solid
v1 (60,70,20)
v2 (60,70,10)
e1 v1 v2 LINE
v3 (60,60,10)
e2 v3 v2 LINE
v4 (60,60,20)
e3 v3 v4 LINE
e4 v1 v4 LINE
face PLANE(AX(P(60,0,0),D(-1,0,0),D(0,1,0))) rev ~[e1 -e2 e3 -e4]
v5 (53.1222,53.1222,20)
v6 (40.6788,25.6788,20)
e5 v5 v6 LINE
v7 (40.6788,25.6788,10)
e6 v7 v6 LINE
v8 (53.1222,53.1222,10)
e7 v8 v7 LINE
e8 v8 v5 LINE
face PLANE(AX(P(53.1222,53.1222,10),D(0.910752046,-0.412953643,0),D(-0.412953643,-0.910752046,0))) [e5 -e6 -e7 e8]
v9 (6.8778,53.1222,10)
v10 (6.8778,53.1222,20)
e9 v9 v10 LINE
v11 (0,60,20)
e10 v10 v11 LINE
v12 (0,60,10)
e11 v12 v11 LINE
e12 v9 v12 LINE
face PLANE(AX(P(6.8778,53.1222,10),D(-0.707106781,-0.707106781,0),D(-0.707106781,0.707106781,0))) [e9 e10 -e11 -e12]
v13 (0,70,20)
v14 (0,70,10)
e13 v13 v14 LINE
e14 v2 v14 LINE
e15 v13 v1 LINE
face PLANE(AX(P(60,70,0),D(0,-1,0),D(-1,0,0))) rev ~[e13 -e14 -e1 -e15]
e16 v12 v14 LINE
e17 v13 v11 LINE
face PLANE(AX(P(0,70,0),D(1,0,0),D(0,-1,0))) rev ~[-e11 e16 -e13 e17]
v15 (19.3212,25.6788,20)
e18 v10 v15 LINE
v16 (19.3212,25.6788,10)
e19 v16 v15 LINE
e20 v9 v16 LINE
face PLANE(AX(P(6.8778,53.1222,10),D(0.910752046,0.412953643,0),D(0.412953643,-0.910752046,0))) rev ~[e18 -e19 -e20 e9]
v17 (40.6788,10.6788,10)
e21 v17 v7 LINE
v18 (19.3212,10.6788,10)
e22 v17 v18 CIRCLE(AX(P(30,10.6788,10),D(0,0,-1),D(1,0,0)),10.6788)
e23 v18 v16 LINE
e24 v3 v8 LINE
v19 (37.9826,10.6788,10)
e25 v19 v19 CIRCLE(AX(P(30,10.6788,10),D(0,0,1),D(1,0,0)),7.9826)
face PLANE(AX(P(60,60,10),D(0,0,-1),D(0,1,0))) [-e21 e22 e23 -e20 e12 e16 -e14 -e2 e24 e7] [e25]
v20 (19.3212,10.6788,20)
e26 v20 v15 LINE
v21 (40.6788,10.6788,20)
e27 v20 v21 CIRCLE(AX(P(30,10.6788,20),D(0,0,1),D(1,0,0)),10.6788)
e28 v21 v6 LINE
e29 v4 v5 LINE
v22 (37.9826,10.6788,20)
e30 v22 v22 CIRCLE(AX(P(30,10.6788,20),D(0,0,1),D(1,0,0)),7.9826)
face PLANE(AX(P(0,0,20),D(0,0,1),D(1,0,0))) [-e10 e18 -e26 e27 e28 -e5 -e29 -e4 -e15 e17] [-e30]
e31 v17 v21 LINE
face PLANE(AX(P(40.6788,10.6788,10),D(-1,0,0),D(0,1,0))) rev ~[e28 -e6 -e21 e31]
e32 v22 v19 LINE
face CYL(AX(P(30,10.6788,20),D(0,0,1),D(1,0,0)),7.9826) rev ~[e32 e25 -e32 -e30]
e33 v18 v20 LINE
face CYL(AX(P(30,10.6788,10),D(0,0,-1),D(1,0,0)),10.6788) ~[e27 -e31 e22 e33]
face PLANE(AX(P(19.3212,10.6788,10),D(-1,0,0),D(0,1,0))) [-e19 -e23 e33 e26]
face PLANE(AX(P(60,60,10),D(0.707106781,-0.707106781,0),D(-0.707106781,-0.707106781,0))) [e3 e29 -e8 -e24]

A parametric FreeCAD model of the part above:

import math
import FreeCAD as App
import Part
import Sketcher
Q = App.Units.Quantity


def add_polygon(sketch, points):
    """Adds a closed chain of lines whose ends are joined by coincident constraints."""
    first, n = sketch.GeometryCount, len(points)
    for a, b in zip(points, points[1:] + points[:1]):
        sketch.addGeometry(Part.LineSegment(App.Vector(*a, 0), App.Vector(*b, 0)), False)
    for i in range(n):
        sketch.addConstraint(Sketcher.Constraint("Coincident", first + i, 2, first + (i + 1) % n, 1))

doc = App.newDocument("Part")
body = doc.addObject("PartDesign::Body", "Body")

# Sketch on XY plane
sketch1 = body.newObject("Sketcher::SketchObject", "Sketch")
sketch1.AttachmentSupport = (doc.getObject("XY_Plane"), [""])
sketch1.MapMode = "FlatFace"
add_polygon(sketch1, [(0, 70), (0, 0), (60, 0), (60, 70)])  # lines 0-3
sketch1.addConstraint([
    Sketcher.Constraint("Vertical", 0),
    Sketcher.Constraint("Horizontal", 1),
    Sketcher.Constraint("Vertical", 2),
    Sketcher.Constraint("Horizontal", 3),
    Sketcher.Constraint("Coincident", 0, 2, -1, 1),
    Sketcher.Constraint("DistanceX", 1, 1, 1, 2, 60.0),
    Sketcher.Constraint("DistanceY", 0, 2, 0, 1, 70.0),
])
pad1 = body.newObject("PartDesign::Pad", "Pad")
pad1.Profile = sketch1
pad1.Length = 10

# Sketch on XY plane
sketch2 = body.newObject("Sketcher::SketchObject", "Sketch001")
sketch2.AttachmentSupport = (doc.getObject("XY_Plane"), [""])
sketch2.MapMode = "FlatFace"
sketch2.AttachmentOffset = App.Placement(App.Vector(0, 0, 10), App.Rotation())
sketch2.addGeometry([
    Part.LineSegment(App.Vector(0, 70, 0), App.Vector(0, 60, 0)),  # 0
    Part.LineSegment(App.Vector(0, 60, 0), App.Vector(7, 53, 0)),  # 1
    Part.LineSegment(App.Vector(7, 53, 0), App.Vector(19, 26, 0)),  # 2
    Part.LineSegment(App.Vector(19, 26, 0), App.Vector(19, 11, 0)),  # 3
    Part.ArcOfCircle(Part.Circle(App.Vector(30, 11, 0), App.Vector(0, 0, 1), 11), math.radians(180), math.radians(360)),  # 4
    Part.LineSegment(App.Vector(41, 11, 0), App.Vector(41, 26, 0)),  # 5
    Part.LineSegment(App.Vector(41, 26, 0), App.Vector(53, 53, 0)),  # 6
    Part.LineSegment(App.Vector(53, 53, 0), App.Vector(60, 60, 0)),  # 7
    Part.LineSegment(App.Vector(60, 60, 0), App.Vector(60, 70, 0)),  # 8
    Part.LineSegment(App.Vector(60, 70, 0), App.Vector(0, 70, 0)),  # 9
], False)
sketch2.addConstraint([
    Sketcher.Constraint("Coincident", 0, 2, 1, 1),
    Sketcher.Constraint("Coincident", 1, 2, 2, 1),
    Sketcher.Constraint("Coincident", 2, 2, 3, 1),
    Sketcher.Constraint("Tangent", 3, 2, 4, 1),
    Sketcher.Constraint("Tangent", 4, 2, 5, 1),
    Sketcher.Constraint("Coincident", 5, 2, 6, 1),
    Sketcher.Constraint("Coincident", 6, 2, 7, 1),
    Sketcher.Constraint("Coincident", 7, 2, 8, 1),
    Sketcher.Constraint("Coincident", 8, 2, 9, 1),
    Sketcher.Constraint("Coincident", 9, 2, 0, 1),
    Sketcher.Constraint("Vertical", 0),
    Sketcher.Constraint("Vertical", 3),
    Sketcher.Constraint("Vertical", 5),
    Sketcher.Constraint("Vertical", 8),
    Sketcher.Constraint("Horizontal", 9),
    Sketcher.Constraint("PointOnObject", 0, 2, -2),
    Sketcher.Constraint("Perpendicular", 1, 7),
    Sketcher.Constraint("Horizontal", 2, 2, 5, 2),
    Sketcher.Constraint("Horizontal", 1, 2, 6, 2),
    Sketcher.Constraint("Horizontal", 0, 2, 7, 2),
    Sketcher.Constraint("Equal", 2, 6),
    Sketcher.Constraint("Equal", 1, 7),
    Sketcher.Constraint("DistanceY", 0, 2, 0, 1, 10.0),
    Sketcher.Constraint("DistanceX", 9, 2, 9, 1, 60.0),
    Sketcher.Constraint("DistanceY", 3, 2, 3, 1, 15.0),
    Sketcher.Constraint("DistanceY", -1, 1, 0, 2, 60.0),
    Sketcher.Constraint("Angle", 2, Q("-65.6095 deg")),
    Sketcher.Constraint("Radius", 4, 10.6788),
    Sketcher.Constraint("DistanceX", 1, 2, 4, 2, 33.801),
])
pad2 = body.newObject("PartDesign::Pad", "Pad001")
pad2.Profile = sketch2
pad2.Length = 10

# Sketch on YZ plane
sketch3 = body.newObject("Sketcher::SketchObject", "Sketch002")
sketch3.AttachmentSupport = (doc.getObject("YZ_Plane"), [""])
sketch3.MapMode = "FlatFace"
sketch3.AttachmentOffset = App.Placement(App.Vector(0, 0, 60), App.Rotation())
add_polygon(sketch3, [(70, 10), (0, 10), (0, 0), (70, 0)])  # lines 0-3
sketch3.addConstraint([
    Sketcher.Constraint("Horizontal", 0),
    Sketcher.Constraint("Vertical", 1),
    Sketcher.Constraint("Horizontal", 2),
    Sketcher.Constraint("Vertical", 3),
    Sketcher.Constraint("Coincident", 1, 2, -1, 1),
    Sketcher.Constraint("DistanceX", 0, 2, 0, 1, 70.0),
    Sketcher.Constraint("DistanceY", 1, 2, 1, 1, 10.0),
])
pocket1 = body.newObject("PartDesign::Pocket", "Pocket")
pocket1.Profile = sketch3
pocket1.Type = "ThroughAll"

# Sketch on XY plane
sketch4 = body.newObject("Sketcher::SketchObject", "Sketch003")
sketch4.AttachmentSupport = (doc.getObject("XY_Plane"), [""])
sketch4.MapMode = "FlatFace"
sketch4.AttachmentOffset = App.Placement(App.Vector(0, 0, 20), App.Rotation())
sketch4.addGeometry(Part.Circle(App.Vector(30, 11, 0), App.Vector(0, 0, 1), 8), False)
sketch4.addConstraint([
    Sketcher.Constraint("DistanceX", -1, 1, 0, 3, 30.0),
    Sketcher.Constraint("Diameter", 0, 15.9652),
    Sketcher.Constraint("DistanceY", -1, 1, 0, 3, 10.6788),
])
pocket2 = body.newObject("PartDesign::Pocket", "Pocket001")
pocket2.Profile = sketch4
pocket2.Length = 10

doc.recompute()
